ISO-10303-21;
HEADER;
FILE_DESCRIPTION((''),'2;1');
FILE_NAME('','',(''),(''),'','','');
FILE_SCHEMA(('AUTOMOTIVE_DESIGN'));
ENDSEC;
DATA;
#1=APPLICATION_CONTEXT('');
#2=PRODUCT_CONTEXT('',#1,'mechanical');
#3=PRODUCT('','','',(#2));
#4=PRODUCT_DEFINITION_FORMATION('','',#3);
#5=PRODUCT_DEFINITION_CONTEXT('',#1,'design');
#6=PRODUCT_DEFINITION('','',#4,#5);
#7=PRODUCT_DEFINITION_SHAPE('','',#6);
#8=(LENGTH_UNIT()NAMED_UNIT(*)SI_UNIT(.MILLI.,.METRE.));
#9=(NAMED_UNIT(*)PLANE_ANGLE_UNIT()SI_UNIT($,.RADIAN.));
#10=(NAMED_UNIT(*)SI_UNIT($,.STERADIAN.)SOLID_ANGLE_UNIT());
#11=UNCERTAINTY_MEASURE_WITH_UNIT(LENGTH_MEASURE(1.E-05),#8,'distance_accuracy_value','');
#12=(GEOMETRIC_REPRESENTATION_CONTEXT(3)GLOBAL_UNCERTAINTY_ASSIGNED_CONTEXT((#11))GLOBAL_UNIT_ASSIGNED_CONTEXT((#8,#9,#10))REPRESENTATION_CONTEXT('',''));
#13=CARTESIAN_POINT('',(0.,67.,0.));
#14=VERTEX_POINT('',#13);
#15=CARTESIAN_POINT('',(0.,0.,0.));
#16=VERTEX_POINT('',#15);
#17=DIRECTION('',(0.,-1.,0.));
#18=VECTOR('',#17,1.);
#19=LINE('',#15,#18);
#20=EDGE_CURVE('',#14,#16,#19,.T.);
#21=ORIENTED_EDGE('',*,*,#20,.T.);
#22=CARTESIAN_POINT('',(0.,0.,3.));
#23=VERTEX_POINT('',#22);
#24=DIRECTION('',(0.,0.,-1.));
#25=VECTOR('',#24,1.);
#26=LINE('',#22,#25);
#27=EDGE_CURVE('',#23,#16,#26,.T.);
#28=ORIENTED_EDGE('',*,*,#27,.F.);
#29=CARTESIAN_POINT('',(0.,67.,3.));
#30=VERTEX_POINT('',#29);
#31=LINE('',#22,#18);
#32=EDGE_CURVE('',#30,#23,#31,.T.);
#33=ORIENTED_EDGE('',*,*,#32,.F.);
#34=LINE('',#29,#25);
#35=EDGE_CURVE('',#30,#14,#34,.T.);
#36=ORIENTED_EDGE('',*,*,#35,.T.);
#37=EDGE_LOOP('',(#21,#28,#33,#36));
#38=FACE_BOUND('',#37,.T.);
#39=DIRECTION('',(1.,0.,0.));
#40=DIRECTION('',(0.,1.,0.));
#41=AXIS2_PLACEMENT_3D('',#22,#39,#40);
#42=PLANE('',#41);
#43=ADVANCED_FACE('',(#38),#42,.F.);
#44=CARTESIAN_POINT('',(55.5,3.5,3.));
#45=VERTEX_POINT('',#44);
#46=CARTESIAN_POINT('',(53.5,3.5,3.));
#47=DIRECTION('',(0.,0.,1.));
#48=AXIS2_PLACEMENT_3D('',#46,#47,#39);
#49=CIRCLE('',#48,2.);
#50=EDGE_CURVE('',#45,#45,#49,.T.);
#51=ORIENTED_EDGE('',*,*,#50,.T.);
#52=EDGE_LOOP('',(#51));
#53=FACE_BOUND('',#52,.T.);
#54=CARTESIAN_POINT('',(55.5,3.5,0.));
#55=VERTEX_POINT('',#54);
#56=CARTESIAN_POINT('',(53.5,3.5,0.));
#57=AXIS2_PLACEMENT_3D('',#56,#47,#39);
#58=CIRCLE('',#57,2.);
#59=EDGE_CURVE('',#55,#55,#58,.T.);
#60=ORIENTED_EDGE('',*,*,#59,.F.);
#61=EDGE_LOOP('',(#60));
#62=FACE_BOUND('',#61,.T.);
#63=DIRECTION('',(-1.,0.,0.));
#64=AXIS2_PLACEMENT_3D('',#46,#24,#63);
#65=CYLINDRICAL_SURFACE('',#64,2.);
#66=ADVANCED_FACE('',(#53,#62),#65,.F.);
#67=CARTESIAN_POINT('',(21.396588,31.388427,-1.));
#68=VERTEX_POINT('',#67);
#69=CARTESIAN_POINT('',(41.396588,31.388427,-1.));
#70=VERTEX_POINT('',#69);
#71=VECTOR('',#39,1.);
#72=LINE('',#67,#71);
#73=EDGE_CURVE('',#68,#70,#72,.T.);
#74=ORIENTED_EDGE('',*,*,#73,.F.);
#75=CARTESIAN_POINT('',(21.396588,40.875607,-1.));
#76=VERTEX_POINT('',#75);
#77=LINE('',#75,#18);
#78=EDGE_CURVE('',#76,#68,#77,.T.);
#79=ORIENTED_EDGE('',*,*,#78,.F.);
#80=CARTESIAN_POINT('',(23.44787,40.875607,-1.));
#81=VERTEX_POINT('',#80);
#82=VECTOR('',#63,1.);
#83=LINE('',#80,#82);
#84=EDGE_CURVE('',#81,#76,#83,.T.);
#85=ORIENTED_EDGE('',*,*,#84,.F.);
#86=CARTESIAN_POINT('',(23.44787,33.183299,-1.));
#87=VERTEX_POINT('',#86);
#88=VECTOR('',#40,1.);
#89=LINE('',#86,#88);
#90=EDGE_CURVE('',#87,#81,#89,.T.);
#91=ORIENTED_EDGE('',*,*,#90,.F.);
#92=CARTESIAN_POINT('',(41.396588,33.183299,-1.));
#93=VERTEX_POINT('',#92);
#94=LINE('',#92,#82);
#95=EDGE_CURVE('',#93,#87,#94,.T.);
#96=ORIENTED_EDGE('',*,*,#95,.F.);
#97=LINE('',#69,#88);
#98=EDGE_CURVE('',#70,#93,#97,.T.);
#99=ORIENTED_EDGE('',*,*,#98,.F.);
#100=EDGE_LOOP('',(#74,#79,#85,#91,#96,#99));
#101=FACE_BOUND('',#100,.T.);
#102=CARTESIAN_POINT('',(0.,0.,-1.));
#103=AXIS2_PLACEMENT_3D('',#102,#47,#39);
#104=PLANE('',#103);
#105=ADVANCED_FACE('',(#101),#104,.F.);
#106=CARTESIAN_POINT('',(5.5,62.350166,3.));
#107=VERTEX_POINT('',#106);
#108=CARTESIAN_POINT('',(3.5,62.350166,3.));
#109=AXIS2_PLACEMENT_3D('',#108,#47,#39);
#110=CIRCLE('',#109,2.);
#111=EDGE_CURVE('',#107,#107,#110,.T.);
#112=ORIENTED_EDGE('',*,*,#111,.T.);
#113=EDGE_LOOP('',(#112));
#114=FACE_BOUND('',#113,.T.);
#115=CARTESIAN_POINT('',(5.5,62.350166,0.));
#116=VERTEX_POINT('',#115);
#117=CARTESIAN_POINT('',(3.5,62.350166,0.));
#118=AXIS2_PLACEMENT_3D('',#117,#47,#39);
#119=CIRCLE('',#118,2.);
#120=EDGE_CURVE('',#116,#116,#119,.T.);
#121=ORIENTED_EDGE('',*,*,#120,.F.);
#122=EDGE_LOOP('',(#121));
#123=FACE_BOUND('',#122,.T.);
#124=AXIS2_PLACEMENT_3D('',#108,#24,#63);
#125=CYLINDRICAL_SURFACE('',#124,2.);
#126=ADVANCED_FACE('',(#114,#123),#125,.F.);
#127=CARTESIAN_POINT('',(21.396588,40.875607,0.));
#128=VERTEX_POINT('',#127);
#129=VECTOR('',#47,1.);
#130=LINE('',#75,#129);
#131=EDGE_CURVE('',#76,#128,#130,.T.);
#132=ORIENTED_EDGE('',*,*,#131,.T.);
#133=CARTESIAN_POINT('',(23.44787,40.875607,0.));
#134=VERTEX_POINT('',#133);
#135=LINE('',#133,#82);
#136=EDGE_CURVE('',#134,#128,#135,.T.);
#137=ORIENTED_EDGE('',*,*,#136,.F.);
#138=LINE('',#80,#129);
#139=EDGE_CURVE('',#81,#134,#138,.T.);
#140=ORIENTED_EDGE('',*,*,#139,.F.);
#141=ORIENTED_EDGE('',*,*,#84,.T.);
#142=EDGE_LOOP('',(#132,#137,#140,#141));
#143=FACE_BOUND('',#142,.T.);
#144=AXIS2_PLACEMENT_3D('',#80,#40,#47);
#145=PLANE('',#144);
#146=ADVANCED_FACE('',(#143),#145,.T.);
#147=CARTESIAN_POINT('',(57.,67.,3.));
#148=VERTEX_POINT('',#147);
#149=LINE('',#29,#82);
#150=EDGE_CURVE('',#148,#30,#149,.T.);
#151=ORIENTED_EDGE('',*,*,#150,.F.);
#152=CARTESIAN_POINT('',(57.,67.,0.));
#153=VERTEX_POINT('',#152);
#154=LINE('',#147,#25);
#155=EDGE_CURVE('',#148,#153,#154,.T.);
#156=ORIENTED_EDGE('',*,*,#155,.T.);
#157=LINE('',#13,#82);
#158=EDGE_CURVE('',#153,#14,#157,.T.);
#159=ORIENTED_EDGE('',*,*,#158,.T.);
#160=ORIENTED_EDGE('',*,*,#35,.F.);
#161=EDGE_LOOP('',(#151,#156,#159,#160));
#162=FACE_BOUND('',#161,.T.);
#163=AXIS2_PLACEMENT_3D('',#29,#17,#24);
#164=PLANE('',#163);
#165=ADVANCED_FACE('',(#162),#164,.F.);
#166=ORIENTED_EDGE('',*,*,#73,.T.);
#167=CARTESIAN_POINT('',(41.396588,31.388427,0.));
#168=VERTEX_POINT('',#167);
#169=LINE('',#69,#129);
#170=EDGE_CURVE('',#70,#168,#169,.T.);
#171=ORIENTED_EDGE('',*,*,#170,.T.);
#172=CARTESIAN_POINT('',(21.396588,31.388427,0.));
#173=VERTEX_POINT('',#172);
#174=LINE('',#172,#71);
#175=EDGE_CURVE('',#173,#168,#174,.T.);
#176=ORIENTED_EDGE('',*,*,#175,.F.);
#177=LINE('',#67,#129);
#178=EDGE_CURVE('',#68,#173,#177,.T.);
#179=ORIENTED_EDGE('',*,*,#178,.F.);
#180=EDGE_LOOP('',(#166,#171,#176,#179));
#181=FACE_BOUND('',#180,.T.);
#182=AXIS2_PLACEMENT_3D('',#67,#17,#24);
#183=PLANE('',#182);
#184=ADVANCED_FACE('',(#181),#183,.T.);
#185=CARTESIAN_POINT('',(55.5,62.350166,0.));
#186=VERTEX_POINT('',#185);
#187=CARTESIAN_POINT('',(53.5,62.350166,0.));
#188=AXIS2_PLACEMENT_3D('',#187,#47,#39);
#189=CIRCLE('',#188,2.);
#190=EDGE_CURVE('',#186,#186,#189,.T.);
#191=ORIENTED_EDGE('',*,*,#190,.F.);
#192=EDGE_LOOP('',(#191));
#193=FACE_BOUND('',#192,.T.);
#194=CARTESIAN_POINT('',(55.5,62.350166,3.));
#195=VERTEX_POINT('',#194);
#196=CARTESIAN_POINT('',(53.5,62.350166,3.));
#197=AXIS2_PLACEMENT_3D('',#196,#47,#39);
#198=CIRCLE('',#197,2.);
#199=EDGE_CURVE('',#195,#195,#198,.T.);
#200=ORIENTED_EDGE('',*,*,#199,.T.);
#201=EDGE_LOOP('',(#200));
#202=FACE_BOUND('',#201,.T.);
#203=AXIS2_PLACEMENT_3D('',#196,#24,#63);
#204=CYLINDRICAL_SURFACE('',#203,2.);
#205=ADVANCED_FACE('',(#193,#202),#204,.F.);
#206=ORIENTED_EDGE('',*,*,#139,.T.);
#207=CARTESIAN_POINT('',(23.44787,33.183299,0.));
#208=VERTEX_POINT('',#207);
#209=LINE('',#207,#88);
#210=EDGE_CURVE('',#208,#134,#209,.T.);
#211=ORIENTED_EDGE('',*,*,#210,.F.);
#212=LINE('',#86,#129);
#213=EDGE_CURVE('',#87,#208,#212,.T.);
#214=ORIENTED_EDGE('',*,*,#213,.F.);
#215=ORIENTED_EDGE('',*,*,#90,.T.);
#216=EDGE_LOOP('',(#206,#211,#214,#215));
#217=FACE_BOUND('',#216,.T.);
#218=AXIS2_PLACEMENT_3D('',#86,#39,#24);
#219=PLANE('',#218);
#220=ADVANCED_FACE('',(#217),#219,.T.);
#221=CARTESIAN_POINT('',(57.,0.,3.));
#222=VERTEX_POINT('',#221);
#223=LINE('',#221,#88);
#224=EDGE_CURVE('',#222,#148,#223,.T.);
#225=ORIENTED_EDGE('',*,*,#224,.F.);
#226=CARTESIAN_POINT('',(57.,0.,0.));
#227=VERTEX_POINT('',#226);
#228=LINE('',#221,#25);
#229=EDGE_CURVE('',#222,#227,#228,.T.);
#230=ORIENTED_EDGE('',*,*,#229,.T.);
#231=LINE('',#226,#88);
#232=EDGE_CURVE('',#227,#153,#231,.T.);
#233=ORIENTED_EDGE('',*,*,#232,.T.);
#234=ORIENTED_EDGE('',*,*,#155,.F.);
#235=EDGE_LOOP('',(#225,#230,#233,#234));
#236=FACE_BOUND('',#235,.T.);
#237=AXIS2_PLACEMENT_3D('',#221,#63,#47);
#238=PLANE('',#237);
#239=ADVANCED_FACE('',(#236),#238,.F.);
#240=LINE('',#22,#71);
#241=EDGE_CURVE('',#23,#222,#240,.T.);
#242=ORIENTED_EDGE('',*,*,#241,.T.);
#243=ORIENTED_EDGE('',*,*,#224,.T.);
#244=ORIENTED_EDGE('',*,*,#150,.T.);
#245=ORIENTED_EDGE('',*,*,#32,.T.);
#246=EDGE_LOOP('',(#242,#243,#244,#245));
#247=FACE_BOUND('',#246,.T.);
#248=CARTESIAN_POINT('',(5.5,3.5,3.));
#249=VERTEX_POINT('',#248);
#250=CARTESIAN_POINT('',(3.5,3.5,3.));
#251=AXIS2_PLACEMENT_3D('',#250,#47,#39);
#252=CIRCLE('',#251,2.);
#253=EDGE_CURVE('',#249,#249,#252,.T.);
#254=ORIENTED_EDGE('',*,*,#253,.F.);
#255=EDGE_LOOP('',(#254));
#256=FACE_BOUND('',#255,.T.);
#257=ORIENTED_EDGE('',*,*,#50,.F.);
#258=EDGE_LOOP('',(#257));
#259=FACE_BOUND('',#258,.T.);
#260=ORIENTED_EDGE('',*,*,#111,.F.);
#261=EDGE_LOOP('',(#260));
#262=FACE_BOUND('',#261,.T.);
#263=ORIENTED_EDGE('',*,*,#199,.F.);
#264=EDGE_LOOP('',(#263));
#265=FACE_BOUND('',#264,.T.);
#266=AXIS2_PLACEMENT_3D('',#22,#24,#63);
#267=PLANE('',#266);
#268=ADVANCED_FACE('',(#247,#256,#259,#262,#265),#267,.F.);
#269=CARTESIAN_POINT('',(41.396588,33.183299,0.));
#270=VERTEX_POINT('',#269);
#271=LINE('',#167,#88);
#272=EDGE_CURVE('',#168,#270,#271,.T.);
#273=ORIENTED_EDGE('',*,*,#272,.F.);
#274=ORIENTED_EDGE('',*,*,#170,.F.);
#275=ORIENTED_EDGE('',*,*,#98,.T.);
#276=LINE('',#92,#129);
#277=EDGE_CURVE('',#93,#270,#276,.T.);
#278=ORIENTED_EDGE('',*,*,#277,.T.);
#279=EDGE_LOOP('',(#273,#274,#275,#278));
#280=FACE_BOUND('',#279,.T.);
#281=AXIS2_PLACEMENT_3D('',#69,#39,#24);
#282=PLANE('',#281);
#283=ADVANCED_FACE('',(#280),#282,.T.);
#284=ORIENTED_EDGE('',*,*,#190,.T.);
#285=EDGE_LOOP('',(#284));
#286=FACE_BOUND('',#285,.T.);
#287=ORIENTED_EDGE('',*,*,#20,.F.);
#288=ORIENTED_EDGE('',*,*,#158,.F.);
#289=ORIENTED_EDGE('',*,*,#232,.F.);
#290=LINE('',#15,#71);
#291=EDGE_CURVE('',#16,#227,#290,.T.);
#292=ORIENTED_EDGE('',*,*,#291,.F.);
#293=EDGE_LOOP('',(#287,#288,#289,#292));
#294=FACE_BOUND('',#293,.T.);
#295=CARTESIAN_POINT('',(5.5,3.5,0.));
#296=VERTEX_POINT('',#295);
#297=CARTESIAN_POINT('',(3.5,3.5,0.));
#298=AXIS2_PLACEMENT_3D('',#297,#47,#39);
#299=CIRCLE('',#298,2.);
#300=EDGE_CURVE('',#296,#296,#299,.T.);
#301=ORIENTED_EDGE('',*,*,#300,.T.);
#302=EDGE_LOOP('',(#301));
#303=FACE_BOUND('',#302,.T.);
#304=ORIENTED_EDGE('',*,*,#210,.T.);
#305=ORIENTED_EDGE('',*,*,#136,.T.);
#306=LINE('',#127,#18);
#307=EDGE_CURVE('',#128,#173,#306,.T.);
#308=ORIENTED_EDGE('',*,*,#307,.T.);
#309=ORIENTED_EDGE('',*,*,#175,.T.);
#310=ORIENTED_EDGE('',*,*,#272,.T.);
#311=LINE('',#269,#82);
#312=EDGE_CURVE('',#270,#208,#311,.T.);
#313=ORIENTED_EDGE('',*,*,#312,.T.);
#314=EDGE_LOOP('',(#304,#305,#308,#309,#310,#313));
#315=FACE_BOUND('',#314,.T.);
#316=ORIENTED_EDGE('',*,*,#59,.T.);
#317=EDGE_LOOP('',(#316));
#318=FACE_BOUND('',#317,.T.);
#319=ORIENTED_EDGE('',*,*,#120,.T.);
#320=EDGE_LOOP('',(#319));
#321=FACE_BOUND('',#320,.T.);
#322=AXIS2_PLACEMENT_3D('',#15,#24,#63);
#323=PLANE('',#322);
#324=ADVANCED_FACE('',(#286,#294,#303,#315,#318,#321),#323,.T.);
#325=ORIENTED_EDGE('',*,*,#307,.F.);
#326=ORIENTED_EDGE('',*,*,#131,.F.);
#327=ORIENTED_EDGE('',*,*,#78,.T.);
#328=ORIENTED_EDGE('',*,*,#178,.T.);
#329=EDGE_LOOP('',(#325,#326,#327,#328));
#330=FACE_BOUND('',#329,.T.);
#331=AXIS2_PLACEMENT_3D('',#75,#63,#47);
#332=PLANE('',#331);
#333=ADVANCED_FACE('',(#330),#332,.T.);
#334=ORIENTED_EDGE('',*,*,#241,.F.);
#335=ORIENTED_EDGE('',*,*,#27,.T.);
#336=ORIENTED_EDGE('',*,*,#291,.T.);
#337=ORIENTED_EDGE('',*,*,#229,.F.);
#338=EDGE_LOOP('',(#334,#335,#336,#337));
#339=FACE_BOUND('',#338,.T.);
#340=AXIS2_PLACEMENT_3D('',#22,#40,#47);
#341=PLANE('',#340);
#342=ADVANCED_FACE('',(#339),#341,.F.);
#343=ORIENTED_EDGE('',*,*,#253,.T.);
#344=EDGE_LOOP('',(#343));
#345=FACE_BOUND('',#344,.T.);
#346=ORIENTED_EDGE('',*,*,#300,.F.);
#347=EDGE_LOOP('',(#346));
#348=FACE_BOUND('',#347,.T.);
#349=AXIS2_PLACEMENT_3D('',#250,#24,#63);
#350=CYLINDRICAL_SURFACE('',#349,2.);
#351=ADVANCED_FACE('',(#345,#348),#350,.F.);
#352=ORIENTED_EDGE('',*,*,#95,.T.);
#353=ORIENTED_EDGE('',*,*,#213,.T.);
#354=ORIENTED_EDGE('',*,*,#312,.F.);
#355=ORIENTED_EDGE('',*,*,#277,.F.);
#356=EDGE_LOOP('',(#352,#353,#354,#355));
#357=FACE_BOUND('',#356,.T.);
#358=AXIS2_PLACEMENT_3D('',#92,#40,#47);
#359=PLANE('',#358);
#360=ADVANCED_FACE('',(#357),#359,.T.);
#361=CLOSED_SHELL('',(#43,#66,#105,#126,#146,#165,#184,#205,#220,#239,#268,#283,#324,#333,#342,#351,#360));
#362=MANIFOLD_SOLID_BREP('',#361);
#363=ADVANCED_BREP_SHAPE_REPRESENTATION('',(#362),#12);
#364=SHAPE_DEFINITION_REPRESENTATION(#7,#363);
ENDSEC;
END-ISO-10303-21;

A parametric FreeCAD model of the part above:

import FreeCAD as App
import Part
import Sketcher
from FreeCAD import Vector
Q = App.Units.Quantity


def add_polygon(sketch, points):
    """Adds a closed chain of lines whose ends are joined by coincident constraints."""
    first, n = sketch.GeometryCount, len(points)
    for a, b in zip(points, points[1:] + points[:1]):
        sketch.addGeometry(Part.LineSegment(App.Vector(*a, 0), App.Vector(*b, 0)), False)
    for i in range(n):
        sketch.addConstraint(Sketcher.Constraint("Coincident", first + i, 2, first + (i + 1) % n, 1))

doc = App.newDocument("Part")
body = doc.addObject("PartDesign::Body", "Body")

# Sketch on XY plane
sketch1 = body.newObject("Sketcher::SketchObject", "Sketch")
sketch1.AttachmentSupport = (doc.getObject("XY_Plane"), [""])
sketch1.MapMode = "FlatFace"
add_polygon(sketch1, [(0, 67), (0, 0), (57, 0), (57, 67)])  # lines 0-3
sketch1.addGeometry(Part.Circle(Vector(3.5, 3.5, 0), Vector(0, 0, 1), 2), False)  # 4
sketch1.addGeometry(Part.Circle(Vector(53.5, 3.5, 0), Vector(0, 0, 1), 2), False)  # 5
sketch1.addGeometry(Part.Circle(Vector(3.5, 62.4, 0), Vector(0, 0, 1), 2), False)  # 6
sketch1.addGeometry(Part.Circle(Vector(53.5, 62.4, 0), Vector(0, 0, 1), 2), False)  # 7
sketch1.addConstraint([
    Sketcher.Constraint("Vertical", 0),
    Sketcher.Constraint("Horizontal", 1),
    Sketcher.Constraint("Vertical", 2),
    Sketcher.Constraint("Horizontal", 3),
    Sketcher.Constraint("Coincident", 0, 2, -1, 1),
    Sketcher.Constraint("Equal", 4, 5),
    Sketcher.Constraint("Equal", 5, 6),
    Sketcher.Constraint("Equal", 6, 7),
    Sketcher.Constraint("Horizontal", 4, 3, 5, 3),
    Sketcher.Constraint("Horizontal", 6, 3, 7, 3),
    Sketcher.Constraint("Vertical", 4, 3, 6, 3),
    Sketcher.Constraint("Vertical", 5, 3, 7, 3),
    Sketcher.Constraint("Diameter", 4, Q("4 mm")),
    Sketcher.Constraint("DistanceX", 1, 1, 1, 2, Q("57 mm")),
    Sketcher.Constraint("DistanceY", 0, 2, 0, 1, Q("67 mm")),
    Sketcher.Constraint("DistanceX", 4, 3, 5, 3, Q("50 mm")),
    Sketcher.Constraint("DistanceX", -1, 1, 4, 3, Q("3.5 mm")),
    Sketcher.Constraint("DistanceY", -1, 1, 4, 3, Q("3.5 mm")),
    Sketcher.Constraint("DistanceY", -1, 1, 6, 3, Q("62.350166 mm")),
])
pad1 = body.newObject("PartDesign::Pad", "Pad")
pad1.Profile = sketch1
pad1.Length = 3

# Sketch on XY plane
sketch2 = body.newObject("Sketcher::SketchObject", "Sketch001")
sketch2.AttachmentSupport = (doc.getObject("XY_Plane"), [""])
sketch2.MapMode = "FlatFace"
add_polygon(sketch2, [(41.4, 33.2), (41.4, 31.4), (21.4, 31.4), (21.4, 40.9), (23.4, 40.9), (23.4, 33.2)])  # lines 0-5
sketch2.addConstraint([
    Sketcher.Constraint("Vertical", 0),
    Sketcher.Constraint("Horizontal", 1),
    Sketcher.Constraint("Vertical", 2),
    Sketcher.Constraint("Horizontal", 3),
    Sketcher.Constraint("Vertical", 4),
    Sketcher.Constraint("Horizontal", 5),
    Sketcher.Constraint("DistanceX", 1, 2, 1, 1, Q("20 mm")),
    Sketcher.Constraint("DistanceY", 0, 2, 0, 1, Q("1.794872 mm")),
    Sketcher.Constraint("DistanceY", 2, 1, 2, 2, Q("9.487179 mm")),
    Sketcher.Constraint("DistanceY", -1, 1, 4, 2, Q("33.183299 mm")),
    Sketcher.Constraint("DistanceX", 3, 1, 3, 2, Q("2.051282 mm")),
    Sketcher.Constraint("DistanceX", -1, 1, 0, 2, Q("41.396588 mm")),
])
pad2 = body.newObject("PartDesign::Pad", "Pad001")
pad2.Profile = sketch2
pad2.Length = 1
pad2.Reversed = True

doc.recompute()
